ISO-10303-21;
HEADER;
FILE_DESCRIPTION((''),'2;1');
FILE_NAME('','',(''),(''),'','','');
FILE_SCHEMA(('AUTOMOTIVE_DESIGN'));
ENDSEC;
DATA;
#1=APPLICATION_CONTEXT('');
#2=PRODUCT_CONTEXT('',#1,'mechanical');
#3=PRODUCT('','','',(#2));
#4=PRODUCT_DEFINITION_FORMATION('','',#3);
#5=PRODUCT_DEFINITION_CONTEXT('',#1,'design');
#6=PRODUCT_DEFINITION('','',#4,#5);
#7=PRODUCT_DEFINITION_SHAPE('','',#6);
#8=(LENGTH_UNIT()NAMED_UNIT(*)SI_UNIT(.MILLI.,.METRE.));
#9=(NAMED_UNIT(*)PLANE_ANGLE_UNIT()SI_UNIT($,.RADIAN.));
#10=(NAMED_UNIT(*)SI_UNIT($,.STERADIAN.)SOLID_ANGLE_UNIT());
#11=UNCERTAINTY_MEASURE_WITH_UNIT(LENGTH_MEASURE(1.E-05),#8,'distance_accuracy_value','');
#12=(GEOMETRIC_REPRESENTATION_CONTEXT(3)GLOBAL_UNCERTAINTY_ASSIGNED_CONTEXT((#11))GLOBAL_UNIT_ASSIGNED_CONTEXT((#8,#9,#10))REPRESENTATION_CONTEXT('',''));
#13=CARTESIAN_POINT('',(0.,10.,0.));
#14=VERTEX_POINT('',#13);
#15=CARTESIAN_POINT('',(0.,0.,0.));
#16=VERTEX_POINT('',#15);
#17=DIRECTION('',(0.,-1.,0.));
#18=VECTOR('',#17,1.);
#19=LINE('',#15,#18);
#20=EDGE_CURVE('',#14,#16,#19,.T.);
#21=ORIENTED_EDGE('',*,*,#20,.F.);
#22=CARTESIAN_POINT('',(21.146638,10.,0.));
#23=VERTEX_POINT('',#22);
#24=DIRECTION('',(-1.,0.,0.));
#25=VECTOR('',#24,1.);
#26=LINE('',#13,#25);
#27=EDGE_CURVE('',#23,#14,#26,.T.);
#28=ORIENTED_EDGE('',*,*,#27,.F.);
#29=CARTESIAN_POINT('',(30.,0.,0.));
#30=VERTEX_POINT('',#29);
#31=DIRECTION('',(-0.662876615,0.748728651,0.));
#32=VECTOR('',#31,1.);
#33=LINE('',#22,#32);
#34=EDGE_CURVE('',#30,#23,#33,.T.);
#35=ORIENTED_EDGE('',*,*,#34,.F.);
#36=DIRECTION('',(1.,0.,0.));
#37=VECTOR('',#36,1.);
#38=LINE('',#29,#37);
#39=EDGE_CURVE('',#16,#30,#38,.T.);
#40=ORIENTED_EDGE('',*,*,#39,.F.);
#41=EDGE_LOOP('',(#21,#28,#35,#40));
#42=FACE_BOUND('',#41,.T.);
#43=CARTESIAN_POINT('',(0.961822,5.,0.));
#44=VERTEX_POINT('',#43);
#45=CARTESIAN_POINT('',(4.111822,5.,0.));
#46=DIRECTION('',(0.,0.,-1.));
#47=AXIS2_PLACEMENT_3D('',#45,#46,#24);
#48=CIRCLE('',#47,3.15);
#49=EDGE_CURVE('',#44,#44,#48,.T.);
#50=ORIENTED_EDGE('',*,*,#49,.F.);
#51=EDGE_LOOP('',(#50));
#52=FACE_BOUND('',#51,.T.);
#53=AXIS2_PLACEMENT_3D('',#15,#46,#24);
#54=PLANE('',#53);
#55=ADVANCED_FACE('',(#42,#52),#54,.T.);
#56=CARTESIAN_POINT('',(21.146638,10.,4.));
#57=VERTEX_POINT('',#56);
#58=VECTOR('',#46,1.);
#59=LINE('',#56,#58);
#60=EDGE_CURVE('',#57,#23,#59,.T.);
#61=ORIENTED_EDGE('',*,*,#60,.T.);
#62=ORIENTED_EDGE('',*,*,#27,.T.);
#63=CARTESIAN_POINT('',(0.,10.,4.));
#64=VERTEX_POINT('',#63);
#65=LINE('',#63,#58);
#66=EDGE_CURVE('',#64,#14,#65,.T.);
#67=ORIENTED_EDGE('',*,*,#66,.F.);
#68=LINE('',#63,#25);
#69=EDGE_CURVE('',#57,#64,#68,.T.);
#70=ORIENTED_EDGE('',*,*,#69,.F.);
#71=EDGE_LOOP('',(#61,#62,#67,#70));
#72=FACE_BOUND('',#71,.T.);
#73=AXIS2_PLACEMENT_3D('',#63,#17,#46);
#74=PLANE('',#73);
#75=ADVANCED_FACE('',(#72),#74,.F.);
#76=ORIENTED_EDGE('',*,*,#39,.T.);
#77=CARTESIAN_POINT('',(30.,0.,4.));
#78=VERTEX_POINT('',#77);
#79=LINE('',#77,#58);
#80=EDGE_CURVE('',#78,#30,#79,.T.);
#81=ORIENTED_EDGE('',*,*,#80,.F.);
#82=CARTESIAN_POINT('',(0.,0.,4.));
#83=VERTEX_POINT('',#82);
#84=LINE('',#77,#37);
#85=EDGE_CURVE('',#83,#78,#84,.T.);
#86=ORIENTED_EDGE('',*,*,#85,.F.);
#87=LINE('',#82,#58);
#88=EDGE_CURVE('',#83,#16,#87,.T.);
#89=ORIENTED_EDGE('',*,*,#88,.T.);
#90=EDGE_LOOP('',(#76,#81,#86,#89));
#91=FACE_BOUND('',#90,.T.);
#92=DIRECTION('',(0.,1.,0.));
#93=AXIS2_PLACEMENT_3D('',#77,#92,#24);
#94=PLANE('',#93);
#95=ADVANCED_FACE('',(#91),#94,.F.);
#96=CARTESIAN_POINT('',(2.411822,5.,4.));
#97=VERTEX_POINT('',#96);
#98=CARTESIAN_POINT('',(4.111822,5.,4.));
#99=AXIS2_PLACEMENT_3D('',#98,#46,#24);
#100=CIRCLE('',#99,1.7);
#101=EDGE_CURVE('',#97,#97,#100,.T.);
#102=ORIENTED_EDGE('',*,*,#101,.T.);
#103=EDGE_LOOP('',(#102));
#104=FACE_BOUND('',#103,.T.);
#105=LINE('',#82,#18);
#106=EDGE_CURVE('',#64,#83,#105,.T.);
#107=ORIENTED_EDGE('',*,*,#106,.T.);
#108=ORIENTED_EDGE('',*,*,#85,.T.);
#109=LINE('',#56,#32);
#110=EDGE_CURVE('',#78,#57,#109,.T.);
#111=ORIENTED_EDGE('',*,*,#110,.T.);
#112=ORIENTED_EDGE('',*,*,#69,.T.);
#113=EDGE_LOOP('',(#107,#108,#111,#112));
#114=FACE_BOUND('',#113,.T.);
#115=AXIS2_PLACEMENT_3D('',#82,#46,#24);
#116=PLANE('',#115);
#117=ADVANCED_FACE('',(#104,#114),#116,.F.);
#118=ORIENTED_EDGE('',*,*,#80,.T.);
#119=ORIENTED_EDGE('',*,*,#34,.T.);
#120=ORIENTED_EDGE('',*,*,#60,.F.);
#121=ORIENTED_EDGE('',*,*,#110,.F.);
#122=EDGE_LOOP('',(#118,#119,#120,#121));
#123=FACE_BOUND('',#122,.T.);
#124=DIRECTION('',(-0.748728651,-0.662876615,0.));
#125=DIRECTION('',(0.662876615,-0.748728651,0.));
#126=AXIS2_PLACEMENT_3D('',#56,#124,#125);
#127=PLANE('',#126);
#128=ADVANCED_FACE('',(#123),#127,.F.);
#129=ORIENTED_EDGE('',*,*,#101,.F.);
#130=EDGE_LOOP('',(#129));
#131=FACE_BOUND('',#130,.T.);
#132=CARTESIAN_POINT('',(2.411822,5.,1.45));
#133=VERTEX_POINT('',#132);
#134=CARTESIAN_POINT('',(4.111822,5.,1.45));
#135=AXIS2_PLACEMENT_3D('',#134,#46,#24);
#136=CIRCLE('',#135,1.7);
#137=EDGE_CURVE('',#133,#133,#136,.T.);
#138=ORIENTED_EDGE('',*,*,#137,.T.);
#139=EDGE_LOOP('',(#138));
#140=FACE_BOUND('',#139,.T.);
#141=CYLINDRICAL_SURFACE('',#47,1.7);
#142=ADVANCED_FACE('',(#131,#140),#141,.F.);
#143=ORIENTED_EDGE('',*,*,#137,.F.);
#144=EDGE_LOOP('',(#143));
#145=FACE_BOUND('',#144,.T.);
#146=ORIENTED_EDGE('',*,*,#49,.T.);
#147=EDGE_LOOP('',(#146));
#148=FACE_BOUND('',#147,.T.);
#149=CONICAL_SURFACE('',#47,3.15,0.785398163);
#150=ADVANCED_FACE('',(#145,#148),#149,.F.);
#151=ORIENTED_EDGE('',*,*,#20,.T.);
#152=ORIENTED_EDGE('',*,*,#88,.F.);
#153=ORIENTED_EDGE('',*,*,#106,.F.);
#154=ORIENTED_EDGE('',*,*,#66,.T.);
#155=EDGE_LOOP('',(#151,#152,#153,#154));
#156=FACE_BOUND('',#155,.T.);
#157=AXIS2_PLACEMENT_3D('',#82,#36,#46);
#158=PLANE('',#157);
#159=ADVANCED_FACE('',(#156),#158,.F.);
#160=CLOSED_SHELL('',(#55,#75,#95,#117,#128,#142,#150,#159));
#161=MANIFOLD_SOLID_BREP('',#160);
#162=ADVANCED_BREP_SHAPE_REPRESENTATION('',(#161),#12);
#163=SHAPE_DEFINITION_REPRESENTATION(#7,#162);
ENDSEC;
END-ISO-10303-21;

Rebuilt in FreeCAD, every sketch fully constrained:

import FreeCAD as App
import Part
import Sketcher


def add_polygon(sketch, points):
    """Adds a closed chain of lines whose ends are joined by coincident constraints."""
    first, n = sketch.GeometryCount, len(points)
    for a, b in zip(points, points[1:] + points[:1]):
        sketch.addGeometry(Part.LineSegment(App.Vector(*a, 0), App.Vector(*b, 0)), False)
    for i in range(n):
        sketch.addConstraint(Sketcher.Constraint("Coincident", first + i, 2, first + (i + 1) % n, 1))

doc = App.newDocument("Part")
params = doc.addObject("Spreadsheet::Sheet", "Params")
for row, (alias, value) in enumerate([
    ("sketch1_width", "30 mm"),
    ("sketch1_height", "10 mm"),
    ("pad1_length", "4 mm"),
    ("sketch2_diameter", "3.4 mm"),
    ("hole_diameter", "3.4 mm"),
    ("hole_csink_diameter", "6.3 mm"),
], start=1):
    params.set(f"A{row}", alias)
    params.set(f"B{row}", "=" + value)
    params.setAlias(f"B{row}", alias)

body = doc.addObject("PartDesign::Body", "Body")

sketch1 = body.newObject("Sketcher::SketchObject", "Sketch")
sketch1.AttachmentSupport = (doc.getObject("XY_Plane"), [""])
sketch1.MapMode = "FlatFace"
add_polygon(sketch1, [(0, 10), (0, 0), (30, 0), (21, 10)])
sketch1.addConstraint(Sketcher.Constraint("Vertical", 0))
sketch1.addConstraint(Sketcher.Constraint("Horizontal", 1))
sketch1.addConstraint(Sketcher.Constraint("Horizontal", 3))
sketch1.addConstraint(Sketcher.Constraint("Coincident", 0, 2, -1, 1))
sketch1.addConstraint(Sketcher.Constraint("DistanceX", 1, 1, 1, 2, 30.0))
sketch1.addConstraint(Sketcher.Constraint("DistanceY", 0, 2, 0, 1, 10.0))
sketch1.addConstraint(Sketcher.Constraint("DistanceX", 3, 2, 3, 1, 21.146638))
sketch1.setExpression("Constraints[8]", "Params.sketch1_width")
sketch1.setExpression("Constraints[9]", "Params.sketch1_height")
pad1 = body.newObject("PartDesign::Pad", "Pad")
pad1.Profile = sketch1
pad1.setExpression("Length", "Params.pad1_length")

sketch2 = body.newObject("Sketcher::SketchObject", "Sketch001")
sketch2.AttachmentSupport = (doc.getObject("XY_Plane"), [""])
sketch2.MapMode = "FlatFace"
sketch2.addGeometry(Part.Circle(App.Vector(4.1, 5, 0), App.Vector(0, 0, 1), 1.7), False)
sketch2.addConstraint(Sketcher.Constraint("Diameter", 0, 3.4))
sketch2.addConstraint(Sketcher.Constraint("DistanceY", -1, 1, 0, 3, 5.0))
sketch2.addConstraint(Sketcher.Constraint("DistanceX", -1, 1, 0, 3, 4.111822))
sketch2.setExpression("Constraints[0]", "Params.sketch2_diameter")
doc.recompute()
hole = body.newObject("PartDesign::Hole", "Hole")
hole.Profile = sketch2
hole.ThreadType = "None"
hole.setExpression("Diameter", "Params.hole_diameter")
hole.DepthType = "ThroughAll"
hole.HoleCutType = "Countersink"
hole.setExpression("HoleCutDiameter", "Params.hole_csink_diameter")
hole.HoleCutCountersinkAngle = 90
hole.Reversed = True

doc.recompute()
